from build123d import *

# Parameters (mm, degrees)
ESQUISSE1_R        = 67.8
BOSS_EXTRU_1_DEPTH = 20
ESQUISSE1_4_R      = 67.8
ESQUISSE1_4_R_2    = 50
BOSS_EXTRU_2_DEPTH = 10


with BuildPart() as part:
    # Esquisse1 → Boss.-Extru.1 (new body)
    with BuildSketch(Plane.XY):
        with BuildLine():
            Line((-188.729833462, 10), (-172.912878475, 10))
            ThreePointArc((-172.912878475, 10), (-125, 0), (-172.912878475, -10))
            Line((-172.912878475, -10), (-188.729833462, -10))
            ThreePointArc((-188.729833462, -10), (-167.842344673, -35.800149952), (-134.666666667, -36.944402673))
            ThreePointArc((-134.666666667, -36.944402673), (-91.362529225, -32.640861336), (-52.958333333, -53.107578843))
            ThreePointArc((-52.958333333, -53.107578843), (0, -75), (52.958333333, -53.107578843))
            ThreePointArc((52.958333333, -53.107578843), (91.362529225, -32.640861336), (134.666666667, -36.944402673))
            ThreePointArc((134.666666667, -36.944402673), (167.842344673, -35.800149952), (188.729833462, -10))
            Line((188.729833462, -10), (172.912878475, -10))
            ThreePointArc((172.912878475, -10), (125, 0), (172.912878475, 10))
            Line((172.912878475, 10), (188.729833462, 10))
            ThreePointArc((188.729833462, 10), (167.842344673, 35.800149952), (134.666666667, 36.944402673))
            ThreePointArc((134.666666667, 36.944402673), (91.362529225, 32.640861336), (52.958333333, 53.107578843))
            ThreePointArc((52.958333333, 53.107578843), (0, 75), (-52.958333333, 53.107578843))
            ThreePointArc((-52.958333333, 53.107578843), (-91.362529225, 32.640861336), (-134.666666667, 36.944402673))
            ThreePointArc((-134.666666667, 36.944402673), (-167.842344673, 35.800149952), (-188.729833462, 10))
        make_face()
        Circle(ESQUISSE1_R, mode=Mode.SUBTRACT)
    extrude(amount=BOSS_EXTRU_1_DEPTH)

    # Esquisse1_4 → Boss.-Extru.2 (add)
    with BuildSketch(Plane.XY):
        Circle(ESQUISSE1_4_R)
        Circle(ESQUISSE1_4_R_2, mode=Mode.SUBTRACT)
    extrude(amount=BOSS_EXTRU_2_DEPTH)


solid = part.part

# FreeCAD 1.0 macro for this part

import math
import FreeCAD as App
import Part
import Sketcher
Q = App.Units.Quantity

doc = App.newDocument("Part")
body = doc.addObject("PartDesign::Body", "Body")

# Sketch on XY plane
sketch1 = body.newObject("Sketcher::SketchObject", "Sketch")
sketch1.AttachmentSupport = (doc.getObject("XY_Plane"), [""])
sketch1.MapMode = "FlatFace"
sketch1.addGeometry(Part.LineSegment(App.Vector(-189, 10, 0), App.Vector(-173, 10, 0)), False)
sketch1.addGeometry(Part.ArcOfCircle(Part.Circle(App.Vector(-150, 0, 0), App.Vector(0, 0, 1), 25), math.radians(-156), math.radians(156)), False)
sketch1.addGeometry(Part.LineSegment(App.Vector(-173, -10, 0), App.Vector(-189, -10, 0)), False)
sketch1.addGeometry(Part.ArcOfCircle(Part.Circle(App.Vector(-150, 0, 0), App.Vector(0, 0, 1), 40), math.radians(-166), math.radians(-67)), False)
sketch1.addGeometry(Part.ArcOfCircle(Part.Circle(App.Vector(-106, -106, 0), App.Vector(0, 0, 1), 75), math.radians(45), math.radians(113)), False)
sketch1.addGeometry(Part.ArcOfCircle(Part.Circle(App.Vector(0, 0, 0), App.Vector(0, 0, 1), 75), math.radians(-135), math.radians(-45)), False)
sketch1.addGeometry(Part.ArcOfCircle(Part.Circle(App.Vector(106, -106, 0), App.Vector(0, 0, 1), 75), math.radians(67), math.radians(135)), False)
sketch1.addGeometry(Part.ArcOfCircle(Part.Circle(App.Vector(150, 0, 0), App.Vector(0, 0, 1), 40), math.radians(-113), math.radians(-14)), False)
sketch1.addGeometry(Part.LineSegment(App.Vector(189, -10, 0), App.Vector(173, -10, 0)), False)
sketch1.addGeometry(Part.ArcOfCircle(Part.Circle(App.Vector(150, 0, 0), App.Vector(0, 0, 1), 25), math.radians(24), math.radians(336)), False)
sketch1.addGeometry(Part.LineSegment(App.Vector(173, 10, 0), App.Vector(189, 10, 0)), False)
sketch1.addGeometry(Part.ArcOfCircle(Part.Circle(App.Vector(150, 0, 0), App.Vector(0, 0, 1), 40), math.radians(14), math.radians(113)), False)
sketch1.addGeometry(Part.ArcOfCircle(Part.Circle(App.Vector(106, 106, 0), App.Vector(0, 0, 1), 75), math.radians(-135), math.radians(-67)), False)
sketch1.addGeometry(Part.ArcOfCircle(Part.Circle(App.Vector(0, 0, 0), App.Vector(0, 0, 1), 75), math.radians(45), math.radians(135)), False)
sketch1.addGeometry(Part.ArcOfCircle(Part.Circle(App.Vector(-106, 106, 0), App.Vector(0, 0, 1), 75), math.radians(-113), math.radians(-45)), False)
sketch1.addGeometry(Part.ArcOfCircle(Part.Circle(App.Vector(-150, 0, 0), App.Vector(0, 0, 1), 40), math.radians(67), math.radians(166)), False)
sketch1.addGeometry(Part.Circle(App.Vector(0, 0, 0), App.Vector(0, 0, 1), 68), False)
sketch1.addConstraint(Sketcher.Constraint("Coincident", 0, 2, 1, 2))
sketch1.addConstraint(Sketcher.Constraint("Coincident", 1, 1, 2, 1))
sketch1.addConstraint(Sketcher.Constraint("Coincident", 2, 2, 3, 1))
sketch1.addConstraint(Sketcher.Constraint("Tangent", 3, 2, 4, 2))
sketch1.addConstraint(Sketcher.Constraint("Tangent", 4, 1, 5, 1))
sketch1.addConstraint(Sketcher.Constraint("Tangent", 5, 2, 6, 2))
sketch1.addConstraint(Sketcher.Constraint("Tangent", 6, 1, 7, 1))
sketch1.addConstraint(Sketcher.Constraint("Coincident", 7, 2, 8, 1))
sketch1.addConstraint(Sketcher.Constraint("Coincident", 8, 2, 9, 2))
sketch1.addConstraint(Sketcher.Constraint("Coincident", 9, 1, 10, 1))
sketch1.addConstraint(Sketcher.Constraint("Coincident", 10, 2, 11, 1))
sketch1.addConstraint(Sketcher.Constraint("Tangent", 11, 2, 12, 2))
sketch1.addConstraint(Sketcher.Constraint("Tangent", 12, 1, 13, 1))
sketch1.addConstraint(Sketcher.Constraint("Tangent", 13, 2, 14, 2))
sketch1.addConstraint(Sketcher.Constraint("Tangent", 14, 1, 15, 1))
sketch1.addConstraint(Sketcher.Constraint("Coincident", 15, 2, 0, 1))
sketch1.addConstraint(Sketcher.Constraint("Horizontal", 0))
sketch1.addConstraint(Sketcher.Constraint("Horizontal", 2))
sketch1.addConstraint(Sketcher.Constraint("Horizontal", 8))
sketch1.addConstraint(Sketcher.Constraint("Horizontal", 10))
sketch1.addConstraint(Sketcher.Constraint("Coincident", 5, 3, -1, 1))
sketch1.addConstraint(Sketcher.Constraint("Coincident", 13, 3, -1, 1))
sketch1.addConstraint(Sketcher.Constraint("Coincident", 16, 3, -1, 1))
sketch1.addConstraint(Sketcher.Constraint("Coincident", 3, 3, 1, 3))
sketch1.addConstraint(Sketcher.Constraint("Coincident", 9, 3, 7, 3))
sketch1.addConstraint(Sketcher.Constraint("Coincident", 11, 3, 7, 3))
sketch1.addConstraint(Sketcher.Constraint("Coincident", 15, 3, 1, 3))
sketch1.addConstraint(Sketcher.Constraint("Equal", 4, 5))
sketch1.addConstraint(Sketcher.Constraint("Equal", 5, 6))
sketch1.addConstraint(Sketcher.Constraint("Equal", 3, 7))
sketch1.addConstraint(Sketcher.Constraint("Equal", 1, 9))
sketch1.addConstraint(Sketcher.Constraint("Equal", 7, 11))
sketch1.addConstraint(Sketcher.Constraint("Equal", 6, 12))
sketch1.addConstraint(Sketcher.Constraint("Equal", 12, 13))
sketch1.addConstraint(Sketcher.Constraint("Equal", 13, 14))
sketch1.addConstraint(Sketcher.Constraint("Equal", 11, 15))
sketch1.addConstraint(Sketcher.Constraint("Symmetric", 1, 3, 7, 3, -1, 1))
sketch1.addConstraint(Sketcher.Constraint("Symmetric", 2, 2, 7, 2, -2))
sketch1.addConstraint(Sketcher.Constraint("Horizontal", 0, 2, 9, 1))
sketch1.addConstraint(Sketcher.Constraint("Vertical", 0, 2, 1, 1))
sketch1.addConstraint(Sketcher.Constraint("Radius", 1, Q("25 mm")))
sketch1.addConstraint(Sketcher.Constraint("Radius", 3, Q("40 mm")))
sketch1.addConstraint(Sketcher.Constraint("Radius", 4, Q("75 mm")))
sketch1.addConstraint(Sketcher.Constraint("Diameter", 16, Q("135.6 mm")))
sketch1.addConstraint(Sketcher.Constraint("DistanceX", 1, 3, -1, 1, Q("150 mm")))
sketch1.addConstraint(Sketcher.Constraint("DistanceY", -1, 1, 0, 2, Q("10 mm")))
pad1 = body.newObject("PartDesign::Pad", "Pad")
pad1.Profile = sketch1
pad1.Length = 20

# Sketch on XY plane
sketch2 = body.newObject("Sketcher::SketchObject", "Sketch001")
sketch2.AttachmentSupport = (doc.getObject("XY_Plane"), [""])
sketch2.MapMode = "FlatFace"
sketch2.addGeometry(Part.Circle(App.Vector(0, 0, 0), App.Vector(0, 0, 1), 68), False)
sketch2.addGeometry(Part.Circle(App.Vector(0, 0, 0), App.Vector(0, 0, 1), 50), False)
sketch2.addConstraint(Sketcher.Constraint("Coincident", 0, 3, -1, 1))
sketch2.addConstraint(Sketcher.Constraint("Coincident", 1, 3, -1, 1))
sketch2.addConstraint(Sketcher.Constraint("Diameter", 1, Q("100 mm")))
sketch2.addConstraint(Sketcher.Constraint("Diameter", 0, Q("135.6 mm")))
pad2 = body.newObject("PartDesign::Pad", "Pad001")
pad2.Profile = sketch2
pad2.Length = 10

doc.recompute()
